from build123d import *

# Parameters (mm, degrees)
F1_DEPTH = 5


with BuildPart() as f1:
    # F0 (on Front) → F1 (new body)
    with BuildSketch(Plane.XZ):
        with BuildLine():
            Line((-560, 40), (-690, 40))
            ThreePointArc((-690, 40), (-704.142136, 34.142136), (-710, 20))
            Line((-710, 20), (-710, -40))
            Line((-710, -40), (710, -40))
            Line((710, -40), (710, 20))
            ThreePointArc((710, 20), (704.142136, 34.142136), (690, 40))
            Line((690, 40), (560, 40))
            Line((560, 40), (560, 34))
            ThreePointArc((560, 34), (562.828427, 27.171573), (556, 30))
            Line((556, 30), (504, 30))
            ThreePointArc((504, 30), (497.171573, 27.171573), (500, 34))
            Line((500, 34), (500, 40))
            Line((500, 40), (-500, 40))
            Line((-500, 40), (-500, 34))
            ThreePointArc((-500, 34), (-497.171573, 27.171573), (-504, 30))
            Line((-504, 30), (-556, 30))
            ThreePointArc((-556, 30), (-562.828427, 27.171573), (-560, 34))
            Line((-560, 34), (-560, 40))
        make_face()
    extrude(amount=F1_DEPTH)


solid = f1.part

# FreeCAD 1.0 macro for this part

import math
import FreeCAD as App
import Part
import Sketcher
from FreeCAD import Vector
Q = App.Units.Quantity

doc = App.newDocument("Part")
body = doc.addObject("PartDesign::Body", "Body")

sketch1 = doc.addObject("Sketcher::SketchObject", "Sketch")
body.addObject(sketch1)
sketch1.AttachmentSupport = (doc.XZ_Plane, [""])
sketch1.MapMode = "FlatFace"
sketch1.addGeometry(Part.LineSegment(Vector(-560, 40, 0), Vector(-690, 40, 0)), False)
sketch1.addGeometry(Part.ArcOfCircle(Part.Circle(Vector(-690.000001, 20.000001, 0), Vector(0, 0, 1), 19.999999), math.radians(89.999996), math.radians(180.000004)), False)
sketch1.addGeometry(Part.LineSegment(Vector(-710, 20, 0), Vector(-710, -40, 0)), False)
sketch1.addGeometry(Part.LineSegment(Vector(-710, -40, 0), Vector(710, -40, 0)), False)
sketch1.addGeometry(Part.LineSegment(Vector(710, -40, 0), Vector(710, 20, 0)), False)
sketch1.addGeometry(Part.ArcOfCircle(Part.Circle(Vector(690.000001, 20.000001, 0), Vector(0, 0, 1), 19.999999), math.radians(-0.000004), math.radians(90.000004)), False)
sketch1.addGeometry(Part.LineSegment(Vector(690, 40, 0), Vector(560, 40, 0)), False)
sketch1.addGeometry(Part.LineSegment(Vector(560, 40, 0), Vector(560, 34, 0)), False)
sketch1.addGeometry(Part.ArcOfCircle(Part.Circle(Vector(560, 30, 0), Vector(0, 0, 1), 4), math.radians(-179.999999), math.radians(89.999999)), False)
sketch1.addGeometry(Part.LineSegment(Vector(556, 30, 0), Vector(504, 30, 0)), False)
sketch1.addGeometry(Part.ArcOfCircle(Part.Circle(Vector(500, 30, 0), Vector(0, 0, 1), 4), math.radians(90.000001), math.radians(359.999999)), False)
sketch1.addGeometry(Part.LineSegment(Vector(500, 34, 0), Vector(500, 40, 0)), False)
sketch1.addGeometry(Part.LineSegment(Vector(500, 40, 0), Vector(-500, 40, 0)), False)
sketch1.addGeometry(Part.LineSegment(Vector(-500, 40, 0), Vector(-500, 34, 0)), False)
sketch1.addGeometry(Part.ArcOfCircle(Part.Circle(Vector(-500, 30, 0), Vector(0, 0, 1), 4), math.radians(-179.999999), math.radians(89.999999)), False)
sketch1.addGeometry(Part.LineSegment(Vector(-504, 30, 0), Vector(-556, 30, 0)), False)
sketch1.addGeometry(Part.ArcOfCircle(Part.Circle(Vector(-560, 30, 0), Vector(0, 0, 1), 4), math.radians(90.000001), math.radians(359.999999)), False)
sketch1.addGeometry(Part.LineSegment(Vector(-560, 34, 0), Vector(-560, 40, 0)), False)
sketch1.addConstraint(Sketcher.Constraint("Tangent", 0, 2, 1, 1))
sketch1.addConstraint(Sketcher.Constraint("Tangent", 1, 2, 2, 1))
sketch1.addConstraint(Sketcher.Constraint("Coincident", 2, 2, 3, 1))
sketch1.addConstraint(Sketcher.Constraint("Coincident", 3, 2, 4, 1))
sketch1.addConstraint(Sketcher.Constraint("Tangent", 4, 2, 5, 1))
sketch1.addConstraint(Sketcher.Constraint("Tangent", 5, 2, 6, 1))
sketch1.addConstraint(Sketcher.Constraint("Coincident", 6, 2, 7, 1))
sketch1.addConstraint(Sketcher.Constraint("Coincident", 7, 2, 8, 2))
sketch1.addConstraint(Sketcher.Constraint("Coincident", 8, 1, 9, 1))
sketch1.addConstraint(Sketcher.Constraint("Coincident", 9, 2, 10, 2))
sketch1.addConstraint(Sketcher.Constraint("Coincident", 10, 1, 11, 1))
sketch1.addConstraint(Sketcher.Constraint("Coincident", 11, 2, 12, 1))
sketch1.addConstraint(Sketcher.Constraint("Coincident", 12, 2, 13, 1))
sketch1.addConstraint(Sketcher.Constraint("Coincident", 13, 2, 14, 2))
sketch1.addConstraint(Sketcher.Constraint("Coincident", 14, 1, 15, 1))
sketch1.addConstraint(Sketcher.Constraint("Coincident", 15, 2, 16, 2))
sketch1.addConstraint(Sketcher.Constraint("Coincident", 16, 1, 17, 1))
sketch1.addConstraint(Sketcher.Constraint("Coincident", 17, 2, 0, 1))
sketch1.addConstraint(Sketcher.Constraint("Horizontal", 0))
sketch1.addConstraint(Sketcher.Constraint("Vertical", 2))
sketch1.addConstraint(Sketcher.Constraint("Horizontal", 3))
sketch1.addConstraint(Sketcher.Constraint("Vertical", 4))
sketch1.addConstraint(Sketcher.Constraint("Horizontal", 6))
sketch1.addConstraint(Sketcher.Constraint("Vertical", 7))
sketch1.addConstraint(Sketcher.Constraint("Horizontal", 9))
sketch1.addConstraint(Sketcher.Constraint("Vertical", 11))
sketch1.addConstraint(Sketcher.Constraint("Horizontal", 12))
sketch1.addConstraint(Sketcher.Constraint("Vertical", 13))
sketch1.addConstraint(Sketcher.Constraint("Horizontal", 15))
sketch1.addConstraint(Sketcher.Constraint("Vertical", 17))
sketch1.addConstraint(Sketcher.Constraint("Equal", 1, 5))
sketch1.addConstraint(Sketcher.Constraint("Equal", 8, 10))
sketch1.addConstraint(Sketcher.Constraint("Equal", 10, 14))
sketch1.addConstraint(Sketcher.Constraint("Equal", 14, 16))
sketch1.addConstraint(Sketcher.Constraint("Symmetric", 1, 3, 5, 3, -2))
sketch1.addConstraint(Sketcher.Constraint("Symmetric", 10, 3, 14, 3, -2))
sketch1.addConstraint(Sketcher.Constraint("Symmetric", 8, 3, 16, 3, -2))
sketch1.addConstraint(Sketcher.Constraint("Horizontal", 8, 3, 10, 3))
sketch1.addConstraint(Sketcher.Constraint("Horizontal", 16, 3, 8, 1))
sketch1.addConstraint(Sketcher.Constraint("Horizontal", 6, 2, 11, 2))
sketch1.addConstraint(Sketcher.Constraint("Horizontal", 9, 2, 14, 1))
sketch1.addConstraint(Sketcher.Constraint("Vertical", 8, 3, 6, 2))
sketch1.addConstraint(Sketcher.Constraint("Vertical", 14, 3, 12, 2))
sketch1.addConstraint(Sketcher.Constraint("Equal", 0, 6))
sketch1.addConstraint(Sketcher.Constraint("Radius", 1, Q("19.999999 mm")))
sketch1.addConstraint(Sketcher.Constraint("Radius", 8, Q("4 mm")))
sketch1.addConstraint(Sketcher.Constraint("DistanceX", 0, 2, 0, 1, Q("130 mm")))
sketch1.addConstraint(Sketcher.Constraint("DistanceX", 3, 1, 3, 2, Q("1420 mm")))
sketch1.addConstraint(Sketcher.Constraint("DistanceX", 9, 2, 9, 1, Q("52 mm")))
sketch1.addConstraint(Sketcher.Constraint("DistanceX", 12, 2, 12, 1, Q("1000 mm")))
sketch1.addConstraint(Sketcher.Constraint("DistanceY", 2, 2, 2, 1, Q("60 mm")))
sketch1.addConstraint(Sketcher.Constraint("DistanceY", 7, 2, 7, 1, Q("6 mm")))
sketch1.addConstraint(Sketcher.Constraint("DistanceY", -1, 1, 1, 3, Q("20.000001 mm")))
pad1 = doc.addObject("PartDesign::Pad", "Pad")
body.addObject(pad1)
pad1.Profile = sketch1
pad1.Length = 5

doc.recompute()
